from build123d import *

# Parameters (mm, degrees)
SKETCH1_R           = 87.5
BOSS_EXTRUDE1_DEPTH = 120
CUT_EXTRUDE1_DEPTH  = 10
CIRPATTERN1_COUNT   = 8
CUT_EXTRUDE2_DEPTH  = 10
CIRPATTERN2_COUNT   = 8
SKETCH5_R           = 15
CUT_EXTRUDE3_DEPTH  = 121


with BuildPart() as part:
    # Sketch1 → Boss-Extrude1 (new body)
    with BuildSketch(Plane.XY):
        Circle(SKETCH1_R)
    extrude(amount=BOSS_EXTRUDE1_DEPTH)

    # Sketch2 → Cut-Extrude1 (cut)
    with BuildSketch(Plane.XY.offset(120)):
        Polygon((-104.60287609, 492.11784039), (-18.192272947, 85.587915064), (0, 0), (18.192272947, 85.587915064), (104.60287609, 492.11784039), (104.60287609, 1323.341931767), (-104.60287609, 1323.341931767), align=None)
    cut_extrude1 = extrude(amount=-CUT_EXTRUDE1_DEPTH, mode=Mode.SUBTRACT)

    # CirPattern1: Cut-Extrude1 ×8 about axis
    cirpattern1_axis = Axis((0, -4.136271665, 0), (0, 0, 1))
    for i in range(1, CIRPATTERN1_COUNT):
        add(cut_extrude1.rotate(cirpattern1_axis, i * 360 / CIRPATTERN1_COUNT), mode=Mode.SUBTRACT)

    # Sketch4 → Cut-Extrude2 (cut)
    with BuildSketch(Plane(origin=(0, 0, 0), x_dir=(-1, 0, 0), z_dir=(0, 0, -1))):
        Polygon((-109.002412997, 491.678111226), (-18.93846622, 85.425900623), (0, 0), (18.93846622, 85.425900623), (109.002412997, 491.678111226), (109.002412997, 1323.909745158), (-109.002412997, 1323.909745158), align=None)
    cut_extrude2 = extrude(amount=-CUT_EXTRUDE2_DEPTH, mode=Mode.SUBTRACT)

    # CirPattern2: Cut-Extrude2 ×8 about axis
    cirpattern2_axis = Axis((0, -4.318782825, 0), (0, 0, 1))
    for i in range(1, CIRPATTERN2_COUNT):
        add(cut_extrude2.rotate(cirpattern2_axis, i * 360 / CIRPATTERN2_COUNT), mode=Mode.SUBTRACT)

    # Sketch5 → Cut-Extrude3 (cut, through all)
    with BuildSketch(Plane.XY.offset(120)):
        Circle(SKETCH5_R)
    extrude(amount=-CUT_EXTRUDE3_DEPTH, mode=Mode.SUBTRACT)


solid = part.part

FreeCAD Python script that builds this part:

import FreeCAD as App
import Part
import Sketcher

V = App.Vector
Q = App.Units.Quantity


def add_polygon(sketch, points):
    """Adds a closed chain of lines whose ends are joined by coincident constraints."""
    first, n = sketch.GeometryCount, len(points)
    for a, b in zip(points, points[1:] + points[:1]):
        sketch.addGeometry(Part.LineSegment(App.Vector(*a, 0), App.Vector(*b, 0)), False)
    for i in range(n):
        sketch.addConstraint(Sketcher.Constraint("Coincident", first + i, 2, first + (i + 1) % n, 1))

doc = App.newDocument("Part")
params = doc.addObject("Spreadsheet::Sheet", "Params")
for row, (alias, value) in enumerate([
    ("sketch1_diameter", "175 mm"),
    ("pad1_length", "120 mm"),
    ("sketch2_length", "87.5 mm"),
    ("pocket1_length", "10 mm"),
    ("sketch3_length", "87.5 mm"),
    ("pocket2_length", "10 mm"),
    ("sketch4_diameter", "30 mm"),
], start=1):
    params.set(f"A{row}", alias)
    params.set(f"B{row}", "=" + value)
    params.setAlias(f"B{row}", alias)

body = doc.addObject("PartDesign::Body", "Body")

# Sketch on XY plane
sketch1 = doc.addObject("Sketcher::SketchObject", "Sketch")
body.addObject(sketch1)
sketch1.AttachmentSupport = (doc.XY_Plane, [""])
sketch1.MapMode = "FlatFace"
sketch1.addGeometry(Part.Circle(V(0, 0, 0), V(0, 0, 1), 88), False)
sketch1.addConstraint(Sketcher.Constraint("Coincident", 0, 3, -1, 1))
sketch1.addConstraint(Sketcher.Constraint("Diameter", 0, Q("175 mm")))
sketch1.setExpression("Constraints[1]", "Params.sketch1_diameter")
pad1 = doc.addObject("PartDesign::Pad", "Pad")
body.addObject(pad1)
pad1.Profile = sketch1
pad1.setExpression("Length", "Params.pad1_length")

# Sketch on XY plane
sketch2 = doc.addObject("Sketcher::SketchObject", "Sketch001")
body.addObject(sketch2)
sketch2.AttachmentSupport = (doc.XY_Plane, [""])
sketch2.MapMode = "FlatFace"
sketch2.AttachmentOffset = App.Placement(V(0, 0, 120), App.Rotation())
add_polygon(sketch2, [(-105, 492), (-18, 86), (0, 0), (18, 86), (105, 492), (105, 1323), (-105, 1323)])  # lines 0-6
sketch2.addConstraint(Sketcher.Constraint("Vertical", 4))
sketch2.addConstraint(Sketcher.Constraint("Horizontal", 5))
sketch2.addConstraint(Sketcher.Constraint("Vertical", 6))
sketch2.addConstraint(Sketcher.Constraint("Coincident", 1, 2, -1, 1))
sketch2.addConstraint(Sketcher.Constraint("Symmetric", 0, 2, 2, 2, -2))
sketch2.addConstraint(Sketcher.Constraint("Symmetric", 3, 2, 6, 2, -2))
sketch2.addConstraint(Sketcher.Constraint("Parallel", 0, 1))
sketch2.addConstraint(Sketcher.Constraint("Angle", 0, Q("-78 deg")))
sketch2.addConstraint(Sketcher.Constraint("Distance", 1, Q("87.5 mm")))
sketch2.addConstraint(Sketcher.Constraint("DistanceY", 4, 1, 4, 2, Q("831.224091 mm")))
sketch2.addConstraint(Sketcher.Constraint("DistanceX", 5, 2, 5, 1, Q("209.205752 mm")))
sketch2.setExpression("Constraints[15]", "Params.sketch2_length")
pocket1 = doc.addObject("PartDesign::Pocket", "Pocket")
body.addObject(pocket1)
pocket1.Profile = sketch2
pocket1.setExpression("Length", "Params.pocket1_length")
doc.recompute()

datumline = doc.addObject("PartDesign::Line", "DatumLine")
body.addObject(datumline)
datumline.Placement = App.Placement(V(0, -4.136272, 0), App.Rotation(V(0, 0, 1), V(0, 0, 1)))
polarpattern = doc.addObject("PartDesign::PolarPattern", "PolarPattern")
body.addObject(polarpattern)
polarpattern.Originals = [pocket1]
polarpattern.Axis = (datumline, [""])
polarpattern.Angle = 360
polarpattern.Occurrences = 8
body.Tip = polarpattern

# Sketch on XY plane
sketch3 = doc.addObject("Sketcher::SketchObject", "Sketch002")
body.addObject(sketch3)
sketch3.AttachmentSupport = (doc.XY_Plane, [""])
sketch3.MapMode = "FlatFace"
add_polygon(sketch3, [(109, 492), (19, 85), (0, 0), (-19, 85), (-109, 492), (-109, 1324), (109, 1324)])  # lines 0-6
sketch3.addConstraint(Sketcher.Constraint("Vertical", 4))
sketch3.addConstraint(Sketcher.Constraint("Horizontal", 5))
sketch3.addConstraint(Sketcher.Constraint("Vertical", 6))
sketch3.addConstraint(Sketcher.Constraint("Coincident", 1, 2, -1, 1))
sketch3.addConstraint(Sketcher.Constraint("Symmetric", 0, 2, 2, 2, -2))
sketch3.addConstraint(Sketcher.Constraint("Symmetric", 3, 2, 6, 2, -2))
sketch3.addConstraint(Sketcher.Constraint("Parallel", 0, 1))
sketch3.addConstraint(Sketcher.Constraint("Angle", 0, Q("-102.5 deg")))
sketch3.addConstraint(Sketcher.Constraint("Distance", 1, Q("87.5 mm")))
sketch3.addConstraint(Sketcher.Constraint("DistanceX", 5, 1, 5, 2, Q("218.004826 mm")))
sketch3.addConstraint(Sketcher.Constraint("DistanceY", 4, 1, 4, 2, Q("832.231634 mm")))
sketch3.setExpression("Constraints[15]", "Params.sketch3_length")
pocket2 = doc.addObject("PartDesign::Pocket", "Pocket001")
body.addObject(pocket2)
pocket2.Profile = sketch3
pocket2.setExpression("Length", "Params.pocket2_length")
pocket2.Reversed = True
doc.recompute()

datumline2 = doc.addObject("PartDesign::Line", "DatumLine001")
body.addObject(datumline2)
datumline2.Placement = App.Placement(V(0, -4.318783, 0), App.Rotation(V(0, 0, 1), V(0, 0, 1)))
polarpattern2 = doc.addObject("PartDesign::PolarPattern", "PolarPattern001")
body.addObject(polarpattern2)
polarpattern2.Originals = [pocket2]
polarpattern2.Axis = (datumline2, [""])
polarpattern2.Angle = 360
polarpattern2.Occurrences = 8
body.Tip = polarpattern2

# Sketch on XY plane
sketch4 = doc.addObject("Sketcher::SketchObject", "Sketch003")
body.addObject(sketch4)
sketch4.AttachmentSupport = (doc.XY_Plane, [""])
sketch4.MapMode = "FlatFace"
sketch4.AttachmentOffset = App.Placement(V(0, 0, 120), App.Rotation())
sketch4.addGeometry(Part.Circle(V(0, 0, 0), V(0, 0, 1), 15), False)
sketch4.addConstraint(Sketcher.Constraint("Coincident", 0, 3, -1, 1))
sketch4.addConstraint(Sketcher.Constraint("Diameter", 0, Q("30 mm")))
sketch4.setExpression("Constraints[1]", "Params.sketch4_diameter")
pocket3 = doc.addObject("PartDesign::Pocket", "Pocket002")
body.addObject(pocket3)
pocket3.Profile = sketch4
pocket3.Type = "ThroughAll"

doc.recompute()
